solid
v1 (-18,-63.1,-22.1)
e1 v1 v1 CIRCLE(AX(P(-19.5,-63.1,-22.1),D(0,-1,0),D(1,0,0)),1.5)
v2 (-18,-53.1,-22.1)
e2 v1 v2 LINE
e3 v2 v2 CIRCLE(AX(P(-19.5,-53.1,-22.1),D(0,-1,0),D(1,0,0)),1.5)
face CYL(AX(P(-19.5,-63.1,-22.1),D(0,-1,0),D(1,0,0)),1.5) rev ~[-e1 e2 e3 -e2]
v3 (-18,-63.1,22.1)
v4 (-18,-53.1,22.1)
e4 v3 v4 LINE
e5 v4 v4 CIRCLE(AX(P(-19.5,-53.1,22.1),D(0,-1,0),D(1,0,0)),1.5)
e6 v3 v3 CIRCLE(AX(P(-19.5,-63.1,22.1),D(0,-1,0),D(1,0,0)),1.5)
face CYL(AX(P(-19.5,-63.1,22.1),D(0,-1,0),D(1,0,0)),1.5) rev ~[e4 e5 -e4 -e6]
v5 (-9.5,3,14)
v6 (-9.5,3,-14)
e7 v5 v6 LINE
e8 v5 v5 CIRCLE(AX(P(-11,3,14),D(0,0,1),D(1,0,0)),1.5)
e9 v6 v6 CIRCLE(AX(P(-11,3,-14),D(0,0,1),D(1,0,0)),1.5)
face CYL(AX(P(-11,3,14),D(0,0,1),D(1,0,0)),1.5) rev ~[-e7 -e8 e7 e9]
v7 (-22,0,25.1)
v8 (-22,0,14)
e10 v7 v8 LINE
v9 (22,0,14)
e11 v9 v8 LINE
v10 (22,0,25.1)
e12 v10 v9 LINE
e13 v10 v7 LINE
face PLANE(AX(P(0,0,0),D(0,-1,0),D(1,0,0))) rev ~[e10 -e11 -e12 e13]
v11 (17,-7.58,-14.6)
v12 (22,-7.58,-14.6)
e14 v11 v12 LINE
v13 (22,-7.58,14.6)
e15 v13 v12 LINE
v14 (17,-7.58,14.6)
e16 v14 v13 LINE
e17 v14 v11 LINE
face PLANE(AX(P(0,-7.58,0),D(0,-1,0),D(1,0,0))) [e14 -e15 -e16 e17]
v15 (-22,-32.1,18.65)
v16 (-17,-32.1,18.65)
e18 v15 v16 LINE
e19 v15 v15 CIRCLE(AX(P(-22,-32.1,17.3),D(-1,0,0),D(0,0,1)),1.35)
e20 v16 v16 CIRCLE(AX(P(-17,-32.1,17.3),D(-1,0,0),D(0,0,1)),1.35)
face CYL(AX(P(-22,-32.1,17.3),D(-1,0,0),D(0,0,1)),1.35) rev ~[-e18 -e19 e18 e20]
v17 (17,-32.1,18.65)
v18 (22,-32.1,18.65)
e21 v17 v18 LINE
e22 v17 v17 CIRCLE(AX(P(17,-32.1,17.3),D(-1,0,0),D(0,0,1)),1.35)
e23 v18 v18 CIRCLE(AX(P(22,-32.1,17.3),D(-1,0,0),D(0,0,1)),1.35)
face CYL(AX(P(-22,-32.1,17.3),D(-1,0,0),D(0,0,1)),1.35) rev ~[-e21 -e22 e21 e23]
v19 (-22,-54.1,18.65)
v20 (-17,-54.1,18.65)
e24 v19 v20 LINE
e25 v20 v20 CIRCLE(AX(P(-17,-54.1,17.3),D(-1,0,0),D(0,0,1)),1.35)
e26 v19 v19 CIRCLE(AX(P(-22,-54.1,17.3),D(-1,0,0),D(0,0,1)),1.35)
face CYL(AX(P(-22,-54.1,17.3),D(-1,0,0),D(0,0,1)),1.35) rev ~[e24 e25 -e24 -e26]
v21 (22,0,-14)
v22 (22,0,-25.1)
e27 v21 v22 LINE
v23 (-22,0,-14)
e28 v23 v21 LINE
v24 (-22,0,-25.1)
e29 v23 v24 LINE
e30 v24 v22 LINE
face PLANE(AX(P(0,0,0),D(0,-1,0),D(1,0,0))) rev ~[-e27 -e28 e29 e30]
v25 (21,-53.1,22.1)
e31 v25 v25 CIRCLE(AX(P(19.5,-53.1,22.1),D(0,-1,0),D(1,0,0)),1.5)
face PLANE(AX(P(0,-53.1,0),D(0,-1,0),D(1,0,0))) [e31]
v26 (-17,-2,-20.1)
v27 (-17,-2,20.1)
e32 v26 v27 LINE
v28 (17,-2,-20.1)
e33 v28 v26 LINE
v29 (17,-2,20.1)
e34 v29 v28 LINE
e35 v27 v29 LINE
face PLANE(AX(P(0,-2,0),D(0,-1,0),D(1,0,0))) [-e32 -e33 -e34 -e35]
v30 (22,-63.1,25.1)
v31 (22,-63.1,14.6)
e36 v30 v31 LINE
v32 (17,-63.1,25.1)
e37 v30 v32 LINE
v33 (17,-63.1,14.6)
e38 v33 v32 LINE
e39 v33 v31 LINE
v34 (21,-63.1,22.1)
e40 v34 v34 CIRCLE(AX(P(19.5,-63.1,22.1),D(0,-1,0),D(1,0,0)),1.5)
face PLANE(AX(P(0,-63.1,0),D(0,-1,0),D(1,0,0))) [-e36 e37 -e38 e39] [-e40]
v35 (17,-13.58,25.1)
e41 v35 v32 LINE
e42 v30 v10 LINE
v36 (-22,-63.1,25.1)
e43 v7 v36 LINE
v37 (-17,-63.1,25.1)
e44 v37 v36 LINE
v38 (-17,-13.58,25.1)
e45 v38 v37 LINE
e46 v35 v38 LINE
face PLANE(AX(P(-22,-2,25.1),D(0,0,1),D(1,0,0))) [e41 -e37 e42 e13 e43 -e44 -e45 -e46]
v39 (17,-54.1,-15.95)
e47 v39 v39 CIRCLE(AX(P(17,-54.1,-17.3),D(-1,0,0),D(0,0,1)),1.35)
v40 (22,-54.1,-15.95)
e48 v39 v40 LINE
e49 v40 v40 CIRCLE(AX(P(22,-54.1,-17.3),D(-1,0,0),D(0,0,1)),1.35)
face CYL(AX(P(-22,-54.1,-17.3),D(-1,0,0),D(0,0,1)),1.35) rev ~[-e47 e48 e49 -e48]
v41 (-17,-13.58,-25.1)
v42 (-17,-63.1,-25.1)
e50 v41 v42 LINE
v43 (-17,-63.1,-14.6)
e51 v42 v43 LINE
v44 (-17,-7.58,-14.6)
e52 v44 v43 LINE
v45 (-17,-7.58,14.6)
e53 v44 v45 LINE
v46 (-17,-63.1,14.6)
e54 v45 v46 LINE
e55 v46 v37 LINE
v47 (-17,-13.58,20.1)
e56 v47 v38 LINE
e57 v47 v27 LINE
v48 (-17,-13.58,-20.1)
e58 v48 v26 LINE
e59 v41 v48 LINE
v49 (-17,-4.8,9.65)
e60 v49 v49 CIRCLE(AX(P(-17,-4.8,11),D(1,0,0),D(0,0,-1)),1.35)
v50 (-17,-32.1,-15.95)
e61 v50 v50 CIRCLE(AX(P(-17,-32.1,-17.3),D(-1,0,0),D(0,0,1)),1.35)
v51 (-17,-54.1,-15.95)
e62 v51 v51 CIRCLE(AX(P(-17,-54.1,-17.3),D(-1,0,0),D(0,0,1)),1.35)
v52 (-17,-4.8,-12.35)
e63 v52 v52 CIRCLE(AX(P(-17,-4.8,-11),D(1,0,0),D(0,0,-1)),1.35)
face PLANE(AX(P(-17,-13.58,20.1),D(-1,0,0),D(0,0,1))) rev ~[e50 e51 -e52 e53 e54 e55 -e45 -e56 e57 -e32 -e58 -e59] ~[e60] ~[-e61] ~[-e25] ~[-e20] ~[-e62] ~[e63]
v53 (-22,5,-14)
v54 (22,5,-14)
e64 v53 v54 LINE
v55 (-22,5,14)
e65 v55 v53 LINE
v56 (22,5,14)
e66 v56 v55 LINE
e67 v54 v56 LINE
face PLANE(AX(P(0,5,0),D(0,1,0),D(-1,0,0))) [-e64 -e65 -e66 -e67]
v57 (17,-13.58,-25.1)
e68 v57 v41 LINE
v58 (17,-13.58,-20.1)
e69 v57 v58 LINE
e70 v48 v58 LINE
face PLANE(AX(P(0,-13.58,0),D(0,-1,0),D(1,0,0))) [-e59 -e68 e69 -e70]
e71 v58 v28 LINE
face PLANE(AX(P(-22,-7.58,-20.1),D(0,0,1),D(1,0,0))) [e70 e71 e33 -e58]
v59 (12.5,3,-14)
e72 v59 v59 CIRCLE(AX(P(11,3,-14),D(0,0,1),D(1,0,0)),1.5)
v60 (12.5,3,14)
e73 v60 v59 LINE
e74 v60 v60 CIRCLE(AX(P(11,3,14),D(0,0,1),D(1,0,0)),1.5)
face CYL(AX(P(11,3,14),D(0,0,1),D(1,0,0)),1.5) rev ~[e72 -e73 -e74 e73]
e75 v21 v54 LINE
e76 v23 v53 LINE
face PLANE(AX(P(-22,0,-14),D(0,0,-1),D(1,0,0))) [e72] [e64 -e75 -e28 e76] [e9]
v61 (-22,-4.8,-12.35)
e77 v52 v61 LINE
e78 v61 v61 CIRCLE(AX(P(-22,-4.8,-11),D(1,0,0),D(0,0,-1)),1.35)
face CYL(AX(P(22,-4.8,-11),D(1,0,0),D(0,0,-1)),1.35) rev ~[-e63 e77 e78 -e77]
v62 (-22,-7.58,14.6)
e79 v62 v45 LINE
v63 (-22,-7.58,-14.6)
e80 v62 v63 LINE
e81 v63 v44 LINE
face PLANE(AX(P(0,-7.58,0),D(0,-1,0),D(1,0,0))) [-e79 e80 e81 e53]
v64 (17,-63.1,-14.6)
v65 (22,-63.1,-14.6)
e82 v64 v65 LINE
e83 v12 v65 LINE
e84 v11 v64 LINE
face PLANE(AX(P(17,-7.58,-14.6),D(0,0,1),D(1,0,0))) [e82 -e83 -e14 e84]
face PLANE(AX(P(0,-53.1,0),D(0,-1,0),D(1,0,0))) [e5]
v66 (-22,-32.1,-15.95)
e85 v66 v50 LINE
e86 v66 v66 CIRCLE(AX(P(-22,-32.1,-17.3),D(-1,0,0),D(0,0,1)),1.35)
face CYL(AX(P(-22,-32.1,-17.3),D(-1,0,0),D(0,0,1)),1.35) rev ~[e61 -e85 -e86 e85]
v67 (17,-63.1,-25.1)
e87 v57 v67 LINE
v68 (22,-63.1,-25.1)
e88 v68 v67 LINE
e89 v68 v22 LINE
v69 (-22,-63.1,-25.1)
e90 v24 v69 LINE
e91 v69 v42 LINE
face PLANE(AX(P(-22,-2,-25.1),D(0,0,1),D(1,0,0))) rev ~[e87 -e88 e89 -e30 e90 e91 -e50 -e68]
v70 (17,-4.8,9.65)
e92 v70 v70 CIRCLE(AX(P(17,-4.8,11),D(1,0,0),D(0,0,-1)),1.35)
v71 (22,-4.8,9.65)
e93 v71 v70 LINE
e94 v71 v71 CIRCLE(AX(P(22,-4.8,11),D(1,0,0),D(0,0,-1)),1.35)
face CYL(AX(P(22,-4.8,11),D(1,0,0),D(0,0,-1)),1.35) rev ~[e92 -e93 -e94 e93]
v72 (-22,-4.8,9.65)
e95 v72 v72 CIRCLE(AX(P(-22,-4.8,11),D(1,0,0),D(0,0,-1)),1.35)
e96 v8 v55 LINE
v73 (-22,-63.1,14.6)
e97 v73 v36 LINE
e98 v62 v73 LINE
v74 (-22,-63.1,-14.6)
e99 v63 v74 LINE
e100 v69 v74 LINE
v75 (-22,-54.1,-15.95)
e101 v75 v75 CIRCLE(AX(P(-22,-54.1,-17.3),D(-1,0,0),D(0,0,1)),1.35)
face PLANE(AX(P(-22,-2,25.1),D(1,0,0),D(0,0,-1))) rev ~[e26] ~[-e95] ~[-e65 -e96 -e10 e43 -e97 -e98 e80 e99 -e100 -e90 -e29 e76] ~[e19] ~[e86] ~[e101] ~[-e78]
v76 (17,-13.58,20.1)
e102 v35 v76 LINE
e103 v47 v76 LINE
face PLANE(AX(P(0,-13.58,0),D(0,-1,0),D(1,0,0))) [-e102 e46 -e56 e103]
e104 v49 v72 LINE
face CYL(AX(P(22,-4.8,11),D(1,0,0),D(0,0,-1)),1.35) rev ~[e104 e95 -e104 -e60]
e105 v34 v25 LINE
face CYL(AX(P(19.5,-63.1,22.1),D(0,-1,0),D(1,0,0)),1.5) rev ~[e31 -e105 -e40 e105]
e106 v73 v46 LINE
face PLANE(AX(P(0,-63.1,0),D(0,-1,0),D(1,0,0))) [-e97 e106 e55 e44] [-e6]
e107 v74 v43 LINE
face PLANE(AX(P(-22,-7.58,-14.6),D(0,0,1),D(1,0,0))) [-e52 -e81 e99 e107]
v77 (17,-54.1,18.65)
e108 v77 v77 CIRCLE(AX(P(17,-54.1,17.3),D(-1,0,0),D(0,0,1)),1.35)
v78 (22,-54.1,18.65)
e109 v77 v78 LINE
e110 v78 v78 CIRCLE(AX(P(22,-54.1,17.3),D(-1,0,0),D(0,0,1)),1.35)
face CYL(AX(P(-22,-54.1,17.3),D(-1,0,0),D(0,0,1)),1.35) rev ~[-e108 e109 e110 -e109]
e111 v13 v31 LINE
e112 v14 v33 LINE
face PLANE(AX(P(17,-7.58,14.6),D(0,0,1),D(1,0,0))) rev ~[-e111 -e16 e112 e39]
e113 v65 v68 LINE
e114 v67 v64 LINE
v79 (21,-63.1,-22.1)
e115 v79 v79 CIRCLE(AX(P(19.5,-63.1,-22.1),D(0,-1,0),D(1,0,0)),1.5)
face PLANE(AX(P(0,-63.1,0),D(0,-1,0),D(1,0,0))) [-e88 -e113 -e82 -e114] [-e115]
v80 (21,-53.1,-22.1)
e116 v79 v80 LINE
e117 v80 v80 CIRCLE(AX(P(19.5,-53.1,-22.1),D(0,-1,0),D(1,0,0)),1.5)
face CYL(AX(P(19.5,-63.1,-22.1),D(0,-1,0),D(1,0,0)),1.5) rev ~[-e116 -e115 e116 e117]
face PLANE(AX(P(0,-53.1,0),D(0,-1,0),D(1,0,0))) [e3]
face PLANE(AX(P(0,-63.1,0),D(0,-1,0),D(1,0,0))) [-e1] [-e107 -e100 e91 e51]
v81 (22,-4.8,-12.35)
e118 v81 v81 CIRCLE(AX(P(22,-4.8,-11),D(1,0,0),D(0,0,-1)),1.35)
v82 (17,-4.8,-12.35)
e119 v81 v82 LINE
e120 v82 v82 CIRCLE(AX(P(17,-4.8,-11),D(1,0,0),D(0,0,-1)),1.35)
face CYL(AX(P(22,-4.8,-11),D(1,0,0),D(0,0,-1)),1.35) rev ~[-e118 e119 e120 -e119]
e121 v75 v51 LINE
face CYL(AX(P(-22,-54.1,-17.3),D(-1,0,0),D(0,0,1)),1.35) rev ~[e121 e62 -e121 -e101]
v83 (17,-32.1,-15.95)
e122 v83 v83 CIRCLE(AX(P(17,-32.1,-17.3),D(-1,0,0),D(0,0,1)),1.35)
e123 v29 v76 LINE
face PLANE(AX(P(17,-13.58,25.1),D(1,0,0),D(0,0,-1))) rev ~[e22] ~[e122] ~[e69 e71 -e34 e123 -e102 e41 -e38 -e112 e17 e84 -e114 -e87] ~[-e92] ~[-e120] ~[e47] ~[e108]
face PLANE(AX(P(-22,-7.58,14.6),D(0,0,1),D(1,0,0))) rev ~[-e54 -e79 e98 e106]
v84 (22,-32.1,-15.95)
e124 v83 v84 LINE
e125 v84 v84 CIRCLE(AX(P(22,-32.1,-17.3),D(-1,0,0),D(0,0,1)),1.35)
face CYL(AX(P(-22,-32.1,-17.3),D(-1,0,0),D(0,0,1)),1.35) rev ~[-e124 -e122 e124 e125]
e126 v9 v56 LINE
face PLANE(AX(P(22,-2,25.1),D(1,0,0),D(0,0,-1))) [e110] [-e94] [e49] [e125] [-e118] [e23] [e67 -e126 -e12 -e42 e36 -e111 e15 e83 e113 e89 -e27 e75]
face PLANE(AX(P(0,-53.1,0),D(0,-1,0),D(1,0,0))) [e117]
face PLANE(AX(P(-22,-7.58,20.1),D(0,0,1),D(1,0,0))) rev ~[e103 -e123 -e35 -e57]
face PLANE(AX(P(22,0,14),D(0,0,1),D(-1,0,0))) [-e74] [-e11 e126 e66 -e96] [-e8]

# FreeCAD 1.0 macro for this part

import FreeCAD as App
import Part
import Sketcher
Q = App.Units.Quantity

doc = App.newDocument("Part")
body = doc.addObject("PartDesign::Body", "Body")

# Sketch on XZ plane
sketch1 = body.newObject("Sketcher::SketchObject", "Sketch")
sketch1.AttachmentSupport = (doc.getObject("XZ_Plane"), [""])
sketch1.MapMode = "FlatFace"
sketch1.addGeometry(Part.LineSegment(App.Vector(22, -14, 0), App.Vector(-22, -14, 0)), False)
sketch1.addGeometry(Part.LineSegment(App.Vector(-22, -14, 0), App.Vector(-22, 14, 0)), False)
sketch1.addGeometry(Part.LineSegment(App.Vector(-22, 14, 0), App.Vector(22, 14, 0)), False)
sketch1.addGeometry(Part.LineSegment(App.Vector(22, 14, 0), App.Vector(22, -14, 0)), False)
sketch1.addConstraint(Sketcher.Constraint("Coincident", 0, 2, 1, 1))
sketch1.addConstraint(Sketcher.Constraint("Coincident", 1, 2, 2, 1))
sketch1.addConstraint(Sketcher.Constraint("Coincident", 2, 2, 3, 1))
sketch1.addConstraint(Sketcher.Constraint("Coincident", 3, 2, 0, 1))
sketch1.addConstraint(Sketcher.Constraint("Horizontal", 0))
sketch1.addConstraint(Sketcher.Constraint("Vertical", 1))
sketch1.addConstraint(Sketcher.Constraint("Horizontal", 2))
sketch1.addConstraint(Sketcher.Constraint("Vertical", 3))
sketch1.addConstraint(Sketcher.Constraint("Symmetric", 0, 2, 2, 2, -1, 1))
sketch1.addConstraint(Sketcher.Constraint("DistanceX", 0, 2, 0, 1, Q("44 mm")))
sketch1.addConstraint(Sketcher.Constraint("DistanceY", 1, 1, 1, 2, Q("28 mm")))
pad1 = body.newObject("PartDesign::Pad", "Pad")
pad1.Profile = sketch1
pad1.Length = 5
pad1.Reversed = True

# Sketch on XY plane
sketch2 = body.newObject("Sketcher::SketchObject", "Sketch001")
sketch2.AttachmentSupport = (doc.getObject("XY_Plane"), [""])
sketch2.MapMode = "FlatFace"
sketch2.AttachmentOffset = App.Placement(App.Vector(0, 0, 14), App.Rotation())
sketch2.addGeometry(Part.Circle(App.Vector(11, 3, 0), App.Vector(0, 0, 1), 1.5), False)
sketch2.addGeometry(Part.Circle(App.Vector(-11, 3, 0), App.Vector(0, 0, 1), 1.5), False)
sketch2.addConstraint(Sketcher.Constraint("Equal", 0, 1))
sketch2.addConstraint(Sketcher.Constraint("Symmetric", 0, 3, 1, 3, -2))
sketch2.addConstraint(Sketcher.Constraint("Diameter", 0, Q("3 mm")))
sketch2.addConstraint(Sketcher.Constraint("DistanceX", -1, 1, 0, 3, Q("11 mm")))
sketch2.addConstraint(Sketcher.Constraint("DistanceY", -1, 1, 0, 3, Q("3 mm")))
pocket1 = body.newObject("PartDesign::Pocket", "Pocket")
pocket1.Profile = sketch2
pocket1.Length = 60

# Sketch on XZ plane
sketch3 = body.newObject("Sketcher::SketchObject", "Sketch002")
sketch3.AttachmentSupport = (doc.getObject("XZ_Plane"), [""])
sketch3.MapMode = "FlatFace"
sketch3.addGeometry(Part.LineSegment(App.Vector(-22, 25.1, 0), App.Vector(-22, -25.1, 0)), False)
sketch3.addGeometry(Part.LineSegment(App.Vector(-22, -25.1, 0), App.Vector(22, -25.1, 0)), False)
sketch3.addGeometry(Part.LineSegment(App.Vector(22, -25.1, 0), App.Vector(22, 25.1, 0)), False)
sketch3.addGeometry(Part.LineSegment(App.Vector(22, 25.1, 0), App.Vector(-22, 25.1, 0)), False)
sketch3.addConstraint(Sketcher.Constraint("Coincident", 0, 2, 1, 1))
sketch3.addConstraint(Sketcher.Constraint("Coincident", 1, 2, 2, 1))
sketch3.addConstraint(Sketcher.Constraint("Coincident", 2, 2, 3, 1))
sketch3.addConstraint(Sketcher.Constraint("Coincident", 3, 2, 0, 1))
sketch3.addConstraint(Sketcher.Constraint("Vertical", 0))
sketch3.addConstraint(Sketcher.Constraint("Horizontal", 1))
sketch3.addConstraint(Sketcher.Constraint("Vertical", 2))
sketch3.addConstraint(Sketcher.Constraint("Horizontal", 3))
sketch3.addConstraint(Sketcher.Constraint("Symmetric", 0, 2, 2, 2, -1, 1))
sketch3.addConstraint(Sketcher.Constraint("DistanceX", 1, 1, 1, 2, Q("44 mm")))
sketch3.addConstraint(Sketcher.Constraint("DistanceY", 0, 2, 0, 1, Q("50.2 mm")))
pad2 = body.newObject("PartDesign::Pad", "Pad001")
pad2.Profile = sketch3
pad2.Length = 2

# Sketch on XZ plane
sketch4 = body.newObject("Sketcher::SketchObject", "Sketch003")
sketch4.AttachmentSupport = (doc.getObject("XZ_Plane"), [""])
sketch4.MapMode = "FlatFace"
sketch4.AttachmentOffset = App.Placement(App.Vector(0, 0, 2), App.Rotation())
sketch4.addGeometry(Part.LineSegment(App.Vector(22, 25.1, 0), App.Vector(-22, 25.1, 0)), False)
sketch4.addGeometry(Part.LineSegment(App.Vector(-22, 25.1, 0), App.Vector(-22, -25.1, 0)), False)
sketch4.addGeometry(Part.LineSegment(App.Vector(-22, -25.1, 0), App.Vector(22, -25.1, 0)), False)
sketch4.addGeometry(Part.LineSegment(App.Vector(22, -25.1, 0), App.Vector(22, 25.1, 0)), False)
sketch4.addGeometry(Part.LineSegment(App.Vector(-17, -20.1, 0), App.Vector(-17, 20.1, 0)), False)
sketch4.addGeometry(Part.LineSegment(App.Vector(-17, 20.1, 0), App.Vector(17, 20.1, 0)), False)
sketch4.addGeometry(Part.LineSegment(App.Vector(17, 20.1, 0), App.Vector(17, -20.1, 0)), False)
sketch4.addGeometry(Part.LineSegment(App.Vector(17, -20.1, 0), App.Vector(-17, -20.1, 0)), False)
sketch4.addConstraint(Sketcher.Constraint("Coincident", 0, 2, 1, 1))
sketch4.addConstraint(Sketcher.Constraint("Coincident", 1, 2, 2, 1))
sketch4.addConstraint(Sketcher.Constraint("Coincident", 2, 2, 3, 1))
sketch4.addConstraint(Sketcher.Constraint("Coincident", 3, 2, 0, 1))
sketch4.addConstraint(Sketcher.Constraint("Coincident", 4, 2, 5, 1))
sketch4.addConstraint(Sketcher.Constraint("Coincident", 5, 2, 6, 1))
sketch4.addConstraint(Sketcher.Constraint("Coincident", 6, 2, 7, 1))
sketch4.addConstraint(Sketcher.Constraint("Coincident", 7, 2, 4, 1))
sketch4.addConstraint(Sketcher.Constraint("Horizontal", 0))
sketch4.addConstraint(Sketcher.Constraint("Vertical", 1))
sketch4.addConstraint(Sketcher.Constraint("Horizontal", 2))
sketch4.addConstraint(Sketcher.Constraint("Vertical", 3))
sketch4.addConstraint(Sketcher.Constraint("Vertical", 4))
sketch4.addConstraint(Sketcher.Constraint("Horizontal", 5))
sketch4.addConstraint(Sketcher.Constraint("Vertical", 6))
sketch4.addConstraint(Sketcher.Constraint("Horizontal", 7))
sketch4.addConstraint(Sketcher.Constraint("Symmetric", 0, 2, 2, 2, -1, 1))
sketch4.addConstraint(Sketcher.Constraint("Symmetric", 4, 2, 6, 2, -1, 1))
sketch4.addConstraint(Sketcher.Constraint("DistanceX", 0, 2, 4, 2, Q("5 mm")))
sketch4.addConstraint(Sketcher.Constraint("DistanceY", 4, 2, 0, 2, Q("5 mm")))
sketch4.addConstraint(Sketcher.Constraint("DistanceX", 0, 2, 0, 1, Q("44 mm")))
sketch4.addConstraint(Sketcher.Constraint("DistanceY", 1, 2, 1, 1, Q("50.2 mm")))
pad3 = body.newObject("PartDesign::Pad", "Pad002")
pad3.Profile = sketch4
pad3.Length = 5.58

# Sketch on YZ plane
sketch5 = body.newObject("Sketcher::SketchObject", "Sketch004")
sketch5.AttachmentSupport = (doc.getObject("YZ_Plane"), [""])
sketch5.MapMode = "FlatFace"
sketch5.AttachmentOffset = App.Placement(App.Vector(0, 0, 22), App.Rotation())
sketch5.addGeometry(Part.Circle(App.Vector(-4.8, -11, 0), App.Vector(0, 0, 1), 1.35), False)
sketch5.addGeometry(Part.Circle(App.Vector(-4.8, 11, 0), App.Vector(0, 0, 1), 1.35), False)
sketch5.addConstraint(Sketcher.Constraint("Equal", 0, 1))
sketch5.addConstraint(Sketcher.Constraint("Symmetric", 0, 3, 1, 3, -1))
sketch5.addConstraint(Sketcher.Constraint("Diameter", 0, Q("2.7 mm")))
sketch5.addConstraint(Sketcher.Constraint("DistanceY", 0, 3, -1, 1, Q("11 mm")))
sketch5.addConstraint(Sketcher.Constraint("DistanceX", 0, 3, -1, 1, Q("4.8 mm")))
pocket2 = body.newObject("PartDesign::Pocket", "Pocket001")
pocket2.Profile = sketch5
pocket2.Length = 90

# Sketch on XZ plane
sketch6 = body.newObject("Sketcher::SketchObject", "Sketch005")
sketch6.AttachmentSupport = (doc.getObject("XZ_Plane"), [""])
sketch6.MapMode = "FlatFace"
sketch6.AttachmentOffset = App.Placement(App.Vector(0, 0, 7.58), App.Rotation())
sketch6.addGeometry(Part.LineSegment(App.Vector(-22, -25.1, 0), App.Vector(22, -25.1, 0)), False)
sketch6.addGeometry(Part.LineSegment(App.Vector(22, -25.1, 0), App.Vector(22, -20.1, 0)), False)
sketch6.addGeometry(Part.LineSegment(App.Vector(22, -20.1, 0), App.Vector(-22, -20.1, 0)), False)
sketch6.addGeometry(Part.LineSegment(App.Vector(-22, -20.1, 0), App.Vector(-22, -25.1, 0)), False)
sketch6.addGeometry(Part.LineSegment(App.Vector(22, 20.1, 0), App.Vector(22, 25.1, 0)), False)
sketch6.addGeometry(Part.LineSegment(App.Vector(22, 25.1, 0), App.Vector(-22, 25.1, 0)), False)
sketch6.addGeometry(Part.LineSegment(App.Vector(-22, 25.1, 0), App.Vector(-22, 20.1, 0)), False)
sketch6.addGeometry(Part.LineSegment(App.Vector(-22, 20.1, 0), App.Vector(22, 20.1, 0)), False)
sketch6.addConstraint(Sketcher.Constraint("Coincident", 0, 2, 1, 1))
sketch6.addConstraint(Sketcher.Constraint("Coincident", 1, 2, 2, 1))
sketch6.addConstraint(Sketcher.Constraint("Coincident", 2, 2, 3, 1))
sketch6.addConstraint(Sketcher.Constraint("Coincident", 3, 2, 0, 1))
sketch6.addConstraint(Sketcher.Constraint("Coincident", 4, 2, 5, 1))
sketch6.addConstraint(Sketcher.Constraint("Coincident", 5, 2, 6, 1))
sketch6.addConstraint(Sketcher.Constraint("Coincident", 6, 2, 7, 1))
sketch6.addConstraint(Sketcher.Constraint("Coincident", 7, 2, 4, 1))
sketch6.addConstraint(Sketcher.Constraint("Horizontal", 0))
sketch6.addConstraint(Sketcher.Constraint("Vertical", 1))
sketch6.addConstraint(Sketcher.Constraint("Horizontal", 2))
sketch6.addConstraint(Sketcher.Constraint("Vertical", 3))
sketch6.addConstraint(Sketcher.Constraint("Vertical", 4))
sketch6.addConstraint(Sketcher.Constraint("Horizontal", 5))
sketch6.addConstraint(Sketcher.Constraint("Vertical", 6))
sketch6.addConstraint(Sketcher.Constraint("Horizontal", 7))
sketch6.addConstraint(Sketcher.Constraint("Symmetric", 3, 2, 4, 2, -1, 1))
sketch6.addConstraint(Sketcher.Constraint("Symmetric", 1, 2, 6, 2, -1, 1))
sketch6.addConstraint(Sketcher.Constraint("Vertical", 1, 2, 4, 2))
sketch6.addConstraint(Sketcher.Constraint("DistanceY", 1, 1, 1, 2, Q("5 mm")))
sketch6.addConstraint(Sketcher.Constraint("DistanceX", 0, 1, 0, 2, Q("44 mm")))
sketch6.addConstraint(Sketcher.Constraint("DistanceY", 0, 2, -1, 1, Q("25.1 mm")))
pad4 = body.newObject("PartDesign::Pad", "Pad003")
pad4.Profile = sketch6
pad4.Length = 6

# Sketch on XZ plane
sketch7 = body.newObject("Sketcher::SketchObject", "Sketch006")
sketch7.AttachmentSupport = (doc.getObject("XZ_Plane"), [""])
sketch7.MapMode = "FlatFace"
sketch7.AttachmentOffset = App.Placement(App.Vector(0, 0, 7.58), App.Rotation())
sketch7.addGeometry(Part.LineSegment(App.Vector(-22, -20.1, 0), App.Vector(-17, -20.1, 0)), False)
sketch7.addGeometry(Part.LineSegment(App.Vector(-17, -20.1, 0), App.Vector(-17, -14.6, 0)), False)
sketch7.addGeometry(Part.LineSegment(App.Vector(-17, -14.6, 0), App.Vector(-22, -14.6, 0)), False)
sketch7.addGeometry(Part.LineSegment(App.Vector(-22, -14.6, 0), App.Vector(-22, -20.1, 0)), False)
sketch7.addGeometry(Part.LineSegment(App.Vector(17, 20.1, 0), App.Vector(17, 14.6, 0)), False)
sketch7.addGeometry(Part.LineSegment(App.Vector(17, 14.6, 0), App.Vector(22, 14.6, 0)), False)
sketch7.addGeometry(Part.LineSegment(App.Vector(22, 14.6, 0), App.Vector(22, 20.1, 0)), False)
sketch7.addGeometry(Part.LineSegment(App.Vector(22, 20.1, 0), App.Vector(17, 20.1, 0)), False)
sketch7.addGeometry(Part.LineSegment(App.Vector(17, -20.1, 0), App.Vector(22, -20.1, 0)), False)
sketch7.addGeometry(Part.LineSegment(App.Vector(22, -20.1, 0), App.Vector(22, -14.6, 0)), False)
sketch7.addGeometry(Part.LineSegment(App.Vector(22, -14.6, 0), App.Vector(17, -14.6, 0)), False)
sketch7.addGeometry(Part.LineSegment(App.Vector(17, -14.6, 0), App.Vector(17, -20.1, 0)), False)
sketch7.addGeometry(Part.LineSegment(App.Vector(-17, 14.6, 0), App.Vector(-17, 20.1, 0)), False)
sketch7.addGeometry(Part.LineSegment(App.Vector(-17, 20.1, 0), App.Vector(-22, 20.1, 0)), False)
sketch7.addGeometry(Part.LineSegment(App.Vector(-22, 20.1, 0), App.Vector(-22, 14.6, 0)), False)
sketch7.addGeometry(Part.LineSegment(App.Vector(-22, 14.6, 0), App.Vector(-17, 14.6, 0)), False)
sketch7.addConstraint(Sketcher.Constraint("Coincident", 0, 2, 1, 1))
sketch7.addConstraint(Sketcher.Constraint("Coincident", 1, 2, 2, 1))
sketch7.addConstraint(Sketcher.Constraint("Coincident", 2, 2, 3, 1))
sketch7.addConstraint(Sketcher.Constraint("Coincident", 3, 2, 0, 1))
sketch7.addConstraint(Sketcher.Constraint("Coincident", 4, 2, 5, 1))
sketch7.addConstraint(Sketcher.Constraint("Coincident", 5, 2, 6, 1))
sketch7.addConstraint(Sketcher.Constraint("Coincident", 6, 2, 7, 1))
sketch7.addConstraint(Sketcher.Constraint("Coincident", 7, 2, 4, 1))
sketch7.addConstraint(Sketcher.Constraint("Coincident", 8, 2, 9, 1))
sketch7.addConstraint(Sketcher.Constraint("Coincident", 9, 2, 10, 1))
sketch7.addConstraint(Sketcher.Constraint("Coincident", 10, 2, 11, 1))
sketch7.addConstraint(Sketcher.Constraint("Coincident", 11, 2, 8, 1))
sketch7.addConstraint(Sketcher.Constraint("Coincident", 12, 2, 13, 1))
sketch7.addConstraint(Sketcher.Constraint("Coincident", 13, 2, 14, 1))
sketch7.addConstraint(Sketcher.Constraint("Coincident", 14, 2, 15, 1))
sketch7.addConstraint(Sketcher.Constraint("Coincident", 15, 2, 12, 1))
sketch7.addConstraint(Sketcher.Constraint("Horizontal", 0))
sketch7.addConstraint(Sketcher.Constraint("Vertical", 1))
sketch7.addConstraint(Sketcher.Constraint("Horizontal", 2))
sketch7.addConstraint(Sketcher.Constraint("Vertical", 3))
sketch7.addConstraint(Sketcher.Constraint("Vertical", 4))
sketch7.addConstraint(Sketcher.Constraint("Horizontal", 5))
sketch7.addConstraint(Sketcher.Constraint("Vertical", 6))
sketch7.addConstraint(Sketcher.Constraint("Horizontal", 7))
sketch7.addConstraint(Sketcher.Constraint("Horizontal", 8))
sketch7.addConstraint(Sketcher.Constraint("Vertical", 9))
sketch7.addConstraint(Sketcher.Constraint("Horizontal", 10))
sketch7.addConstraint(Sketcher.Constraint("Vertical", 11))
sketch7.addConstraint(Sketcher.Constraint("Vertical", 12))
sketch7.addConstraint(Sketcher.Constraint("Horizontal", 13))
sketch7.addConstraint(Sketcher.Constraint("Vertical", 14))
sketch7.addConstraint(Sketcher.Constraint("Horizontal", 15))
sketch7.addConstraint(Sketcher.Constraint("Symmetric", 1, 2, 4, 2, -1, 1))
sketch7.addConstraint(Sketcher.Constraint("Symmetric", 3, 2, 6, 2, -1, 1))
sketch7.addConstraint(Sketcher.Constraint("Symmetric", 11, 2, 12, 2, -1, 1))
sketch7.addConstraint(Sketcher.Constraint("Symmetric", 9, 2, 14, 2, -1, 1))
sketch7.addConstraint(Sketcher.Constraint("Symmetric", 3, 2, 8, 2, -2))
sketch7.addConstraint(Sketcher.Constraint("Symmetric", 1, 2, 10, 2, -2))
sketch7.addConstraint(Sketcher.Constraint("DistanceY", 1, 1, 1, 2, Q("5.5 mm")))
sketch7.addConstraint(Sketcher.Constraint("DistanceX", 0, 1, 0, 2, Q("5 mm")))
sketch7.addConstraint(Sketcher.Constraint("DistanceX", 0, 2, -1, 1, Q("17 mm")))
sketch7.addConstraint(Sketcher.Constraint("DistanceY", 0, 2, -1, 1, Q("20.1 mm")))
pad5 = body.newObject("PartDesign::Pad", "Pad004")
pad5.Profile = sketch7
pad5.Length = 55.52

# Sketch on XZ plane
sketch8 = body.newObject("Sketcher::SketchObject", "Sketch007")
sketch8.AttachmentSupport = (doc.getObject("XZ_Plane"), [""])
sketch8.MapMode = "FlatFace"
sketch8.AttachmentOffset = App.Placement(App.Vector(0, 0, 13.58), App.Rotation())
sketch8.addGeometry(Part.LineSegment(App.Vector(-17, -20.1, 0), App.Vector(-22, -20.1, 0)), False)
sketch8.addGeometry(Part.LineSegment(App.Vector(-22, -20.1, 0), App.Vector(-22, -25.1, 0)), False)
sketch8.addGeometry(Part.LineSegment(App.Vector(-22, -25.1, 0), App.Vector(-17, -25.1, 0)), False)
sketch8.addGeometry(Part.LineSegment(App.Vector(-17, -25.1, 0), App.Vector(-17, -20.1, 0)), False)
sketch8.addGeometry(Part.LineSegment(App.Vector(-17, 20.1, 0), App.Vector(-17, 25.1, 0)), False)
sketch8.addGeometry(Part.LineSegment(App.Vector(-17, 25.1, 0), App.Vector(-22, 25.1, 0)), False)
sketch8.addGeometry(Part.LineSegment(App.Vector(-22, 25.1, 0), App.Vector(-22, 20.1, 0)), False)
sketch8.addGeometry(Part.LineSegment(App.Vector(-22, 20.1, 0), App.Vector(-17, 20.1, 0)), False)
sketch8.addGeometry(Part.LineSegment(App.Vector(17, 25.1, 0), App.Vector(17, 20.1, 0)), False)
sketch8.addGeometry(Part.LineSegment(App.Vector(17, 20.1, 0), App.Vector(22, 20.1, 0)), False)
sketch8.addGeometry(Part.LineSegment(App.Vector(22, 20.1, 0), App.Vector(22, 25.1, 0)), False)
sketch8.addGeometry(Part.LineSegment(App.Vector(22, 25.1, 0), App.Vector(17, 25.1, 0)), False)
sketch8.addGeometry(Part.LineSegment(App.Vector(22, -20.1, 0), App.Vector(17, -20.1, 0)), False)
sketch8.addGeometry(Part.LineSegment(App.Vector(17, -20.1, 0), App.Vector(17, -25.1, 0)), False)
sketch8.addGeometry(Part.LineSegment(App.Vector(17, -25.1, 0), App.Vector(22, -25.1, 0)), False)
sketch8.addGeometry(Part.LineSegment(App.Vector(22, -25.1, 0), App.Vector(22, -20.1, 0)), False)
sketch8.addConstraint(Sketcher.Constraint("Coincident", 0, 2, 1, 1))
sketch8.addConstraint(Sketcher.Constraint("Coincident", 1, 2, 2, 1))
sketch8.addConstraint(Sketcher.Constraint("Coincident", 2, 2, 3, 1))
sketch8.addConstraint(Sketcher.Constraint("Coincident", 3, 2, 0, 1))
sketch8.addConstraint(Sketcher.Constraint("Coincident", 4, 2, 5, 1))
sketch8.addConstraint(Sketcher.Constraint("Coincident", 5, 2, 6, 1))
sketch8.addConstraint(Sketcher.Constraint("Coincident", 6, 2, 7, 1))
sketch8.addConstraint(Sketcher.Constraint("Coincident", 7, 2, 4, 1))
sketch8.addConstraint(Sketcher.Constraint("Coincident", 8, 2, 9, 1))
sketch8.addConstraint(Sketcher.Constraint("Coincident", 9, 2, 10, 1))
sketch8.addConstraint(Sketcher.Constraint("Coincident", 10, 2, 11, 1))
sketch8.addConstraint(Sketcher.Constraint("Coincident", 11, 2, 8, 1))
sketch8.addConstraint(Sketcher.Constraint("Coincident", 12, 2, 13, 1))
sketch8.addConstraint(Sketcher.Constraint("Coincident", 13, 2, 14, 1))
sketch8.addConstraint(Sketcher.Constraint("Coincident", 14, 2, 15, 1))
sketch8.addConstraint(Sketcher.Constraint("Coincident", 15, 2, 12, 1))
sketch8.addConstraint(Sketcher.Constraint("Horizontal", 0))
sketch8.addConstraint(Sketcher.Constraint("Vertical", 1))
sketch8.addConstraint(Sketcher.Constraint("Horizontal", 2))
sketch8.addConstraint(Sketcher.Constraint("Vertical", 3))
sketch8.addConstraint(Sketcher.Constraint("Vertical", 4))
sketch8.addConstraint(Sketcher.Constraint("Horizontal", 5))
sketch8.addConstraint(Sketcher.Constraint("Vertical", 6))
sketch8.addConstraint(Sketcher.Constraint("Horizontal", 7))
sketch8.addConstraint(Sketcher.Constraint("Vertical", 8))
sketch8.addConstraint(Sketcher.Constraint("Horizontal", 9))
sketch8.addConstraint(Sketcher.Constraint("Vertical", 10))
sketch8.addConstraint(Sketcher.Constraint("Horizontal", 11))
sketch8.addConstraint(Sketcher.Constraint("Horizontal", 12))
sketch8.addConstraint(Sketcher.Constraint("Vertical", 13))
sketch8.addConstraint(Sketcher.Constraint("Horizontal", 14))
sketch8.addConstraint(Sketcher.Constraint("Vertical", 15))
sketch8.addConstraint(Sketcher.Constraint("Symmetric", 3, 2, 8, 2, -1, 1))
sketch8.addConstraint(Sketcher.Constraint("Symmetric", 1, 2, 10, 2, -1, 1))
sketch8.addConstraint(Sketcher.Constraint("Symmetric", 7, 2, 12, 2, -1, 1))
sketch8.addConstraint(Sketcher.Constraint("Symmetric", 5, 2, 14, 2, -1, 1))
sketch8.addConstraint(Sketcher.Constraint("Symmetric", 7, 2, 8, 2, -2))
sketch8.addConstraint(Sketcher.Constraint("Symmetric", 5, 2, 10, 2, -2))
sketch8.addConstraint(Sketcher.Constraint("Equal", 14, 1))
sketch8.addConstraint(Sketcher.Constraint("DistanceX", 0, 2, 0, 1, Q("5 mm")))
sketch8.addConstraint(Sketcher.Constraint("DistanceX", 0, 2, -1, 1, Q("22 mm")))
sketch8.addConstraint(Sketcher.Constraint("DistanceY", 0, 2, -1, 1, Q("20.1 mm")))
pad6 = body.newObject("PartDesign::Pad", "Pad005")
pad6.Profile = sketch8
pad6.Length = 49.52

# Sketch on YZ plane
sketch9 = body.newObject("Sketcher::SketchObject", "Sketch008")
sketch9.AttachmentSupport = (doc.getObject("YZ_Plane"), [""])
sketch9.MapMode = "FlatFace"
sketch9.AttachmentOffset = App.Placement(App.Vector(0, 0, -22), App.Rotation())
sketch9.addGeometry(Part.Circle(App.Vector(-54.1, 17.3, 0), App.Vector(0, 0, 1), 1.35), False)
sketch9.addGeometry(Part.Circle(App.Vector(-54.1, -17.3, 0), App.Vector(0, 0, 1), 1.35), False)
sketch9.addGeometry(Part.Circle(App.Vector(-32.1, 17.3, 0), App.Vector(0, 0, 1), 1.35), False)
sketch9.addGeometry(Part.Circle(App.Vector(-32.1, -17.3, 0), App.Vector(0, 0, 1), 1.35), False)
sketch9.addConstraint(Sketcher.Constraint("Equal", 0, 1))
sketch9.addConstraint(Sketcher.Constraint("Equal", 1, 2))
sketch9.addConstraint(Sketcher.Constraint("Equal", 2, 3))
sketch9.addConstraint(Sketcher.Constraint("Symmetric", 0, 3, 1, 3, -1))
sketch9.addConstraint(Sketcher.Constraint("Symmetric", 2, 3, 3, 3, -1))
sketch9.addConstraint(Sketcher.Constraint("Horizontal", 0, 3, 2, 3))
sketch9.addConstraint(Sketcher.Constraint("Diameter", 0, Q("2.7 mm")))
sketch9.addConstraint(Sketcher.Constraint("DistanceX", 0, 3, 2, 3, Q("22 mm")))
sketch9.addConstraint(Sketcher.Constraint("DistanceX", 0, 3, -1, 1, Q("54.1 mm")))
sketch9.addConstraint(Sketcher.Constraint("DistanceY", -1, 1, 0, 3, Q("17.3 mm")))
pocket3 = body.newObject("PartDesign::Pocket", "Pocket002")
pocket3.Profile = sketch9
pocket3.Length = 49.52
pocket3.Reversed = True

# Sketch on XZ plane
sketch10 = body.newObject("Sketcher::SketchObject", "Sketch009")
sketch10.AttachmentSupport = (doc.getObject("XZ_Plane"), [""])
sketch10.MapMode = "FlatFace"
sketch10.AttachmentOffset = App.Placement(App.Vector(0, 0, 63.1), App.Rotation())
sketch10.addGeometry(Part.Circle(App.Vector(19.5, 22.1, 0), App.Vector(0, 0, 1), 1.5), False)
sketch10.addGeometry(Part.Circle(App.Vector(19.5, -22.1, 0), App.Vector(0, 0, 1), 1.5), False)
sketch10.addGeometry(Part.Circle(App.Vector(-19.5, 22.1, 0), App.Vector(0, 0, 1), 1.5), False)
sketch10.addGeometry(Part.Circle(App.Vector(-19.5, -22.1, 0), App.Vector(0, 0, 1), 1.5), False)
sketch10.addConstraint(Sketcher.Constraint("Equal", 0, 1))
sketch10.addConstraint(Sketcher.Constraint("Equal", 1, 2))
sketch10.addConstraint(Sketcher.Constraint("Equal", 2, 3))
sketch10.addConstraint(Sketcher.Constraint("Symmetric", 1, 3, 2, 3, -1, 1))
sketch10.addConstraint(Sketcher.Constraint("Symmetric", 0, 3, 3, 3, -1, 1))
sketch10.addConstraint(Sketcher.Constraint("Symmetric", 0, 3, 2, 3, -2))
sketch10.addConstraint(Sketcher.Constraint("Diameter", 0, Q("3 mm")))
sketch10.addConstraint(Sketcher.Constraint("DistanceX", 2, 3, 0, 3, Q("39 mm")))
sketch10.addConstraint(Sketcher.Constraint("DistanceY", -1, 1, 0, 3, Q("22.1 mm")))
pocket4 = body.newObject("PartDesign::Pocket", "Pocket003")
pocket4.Profile = sketch10
pocket4.Length = 10

doc.recompute()
